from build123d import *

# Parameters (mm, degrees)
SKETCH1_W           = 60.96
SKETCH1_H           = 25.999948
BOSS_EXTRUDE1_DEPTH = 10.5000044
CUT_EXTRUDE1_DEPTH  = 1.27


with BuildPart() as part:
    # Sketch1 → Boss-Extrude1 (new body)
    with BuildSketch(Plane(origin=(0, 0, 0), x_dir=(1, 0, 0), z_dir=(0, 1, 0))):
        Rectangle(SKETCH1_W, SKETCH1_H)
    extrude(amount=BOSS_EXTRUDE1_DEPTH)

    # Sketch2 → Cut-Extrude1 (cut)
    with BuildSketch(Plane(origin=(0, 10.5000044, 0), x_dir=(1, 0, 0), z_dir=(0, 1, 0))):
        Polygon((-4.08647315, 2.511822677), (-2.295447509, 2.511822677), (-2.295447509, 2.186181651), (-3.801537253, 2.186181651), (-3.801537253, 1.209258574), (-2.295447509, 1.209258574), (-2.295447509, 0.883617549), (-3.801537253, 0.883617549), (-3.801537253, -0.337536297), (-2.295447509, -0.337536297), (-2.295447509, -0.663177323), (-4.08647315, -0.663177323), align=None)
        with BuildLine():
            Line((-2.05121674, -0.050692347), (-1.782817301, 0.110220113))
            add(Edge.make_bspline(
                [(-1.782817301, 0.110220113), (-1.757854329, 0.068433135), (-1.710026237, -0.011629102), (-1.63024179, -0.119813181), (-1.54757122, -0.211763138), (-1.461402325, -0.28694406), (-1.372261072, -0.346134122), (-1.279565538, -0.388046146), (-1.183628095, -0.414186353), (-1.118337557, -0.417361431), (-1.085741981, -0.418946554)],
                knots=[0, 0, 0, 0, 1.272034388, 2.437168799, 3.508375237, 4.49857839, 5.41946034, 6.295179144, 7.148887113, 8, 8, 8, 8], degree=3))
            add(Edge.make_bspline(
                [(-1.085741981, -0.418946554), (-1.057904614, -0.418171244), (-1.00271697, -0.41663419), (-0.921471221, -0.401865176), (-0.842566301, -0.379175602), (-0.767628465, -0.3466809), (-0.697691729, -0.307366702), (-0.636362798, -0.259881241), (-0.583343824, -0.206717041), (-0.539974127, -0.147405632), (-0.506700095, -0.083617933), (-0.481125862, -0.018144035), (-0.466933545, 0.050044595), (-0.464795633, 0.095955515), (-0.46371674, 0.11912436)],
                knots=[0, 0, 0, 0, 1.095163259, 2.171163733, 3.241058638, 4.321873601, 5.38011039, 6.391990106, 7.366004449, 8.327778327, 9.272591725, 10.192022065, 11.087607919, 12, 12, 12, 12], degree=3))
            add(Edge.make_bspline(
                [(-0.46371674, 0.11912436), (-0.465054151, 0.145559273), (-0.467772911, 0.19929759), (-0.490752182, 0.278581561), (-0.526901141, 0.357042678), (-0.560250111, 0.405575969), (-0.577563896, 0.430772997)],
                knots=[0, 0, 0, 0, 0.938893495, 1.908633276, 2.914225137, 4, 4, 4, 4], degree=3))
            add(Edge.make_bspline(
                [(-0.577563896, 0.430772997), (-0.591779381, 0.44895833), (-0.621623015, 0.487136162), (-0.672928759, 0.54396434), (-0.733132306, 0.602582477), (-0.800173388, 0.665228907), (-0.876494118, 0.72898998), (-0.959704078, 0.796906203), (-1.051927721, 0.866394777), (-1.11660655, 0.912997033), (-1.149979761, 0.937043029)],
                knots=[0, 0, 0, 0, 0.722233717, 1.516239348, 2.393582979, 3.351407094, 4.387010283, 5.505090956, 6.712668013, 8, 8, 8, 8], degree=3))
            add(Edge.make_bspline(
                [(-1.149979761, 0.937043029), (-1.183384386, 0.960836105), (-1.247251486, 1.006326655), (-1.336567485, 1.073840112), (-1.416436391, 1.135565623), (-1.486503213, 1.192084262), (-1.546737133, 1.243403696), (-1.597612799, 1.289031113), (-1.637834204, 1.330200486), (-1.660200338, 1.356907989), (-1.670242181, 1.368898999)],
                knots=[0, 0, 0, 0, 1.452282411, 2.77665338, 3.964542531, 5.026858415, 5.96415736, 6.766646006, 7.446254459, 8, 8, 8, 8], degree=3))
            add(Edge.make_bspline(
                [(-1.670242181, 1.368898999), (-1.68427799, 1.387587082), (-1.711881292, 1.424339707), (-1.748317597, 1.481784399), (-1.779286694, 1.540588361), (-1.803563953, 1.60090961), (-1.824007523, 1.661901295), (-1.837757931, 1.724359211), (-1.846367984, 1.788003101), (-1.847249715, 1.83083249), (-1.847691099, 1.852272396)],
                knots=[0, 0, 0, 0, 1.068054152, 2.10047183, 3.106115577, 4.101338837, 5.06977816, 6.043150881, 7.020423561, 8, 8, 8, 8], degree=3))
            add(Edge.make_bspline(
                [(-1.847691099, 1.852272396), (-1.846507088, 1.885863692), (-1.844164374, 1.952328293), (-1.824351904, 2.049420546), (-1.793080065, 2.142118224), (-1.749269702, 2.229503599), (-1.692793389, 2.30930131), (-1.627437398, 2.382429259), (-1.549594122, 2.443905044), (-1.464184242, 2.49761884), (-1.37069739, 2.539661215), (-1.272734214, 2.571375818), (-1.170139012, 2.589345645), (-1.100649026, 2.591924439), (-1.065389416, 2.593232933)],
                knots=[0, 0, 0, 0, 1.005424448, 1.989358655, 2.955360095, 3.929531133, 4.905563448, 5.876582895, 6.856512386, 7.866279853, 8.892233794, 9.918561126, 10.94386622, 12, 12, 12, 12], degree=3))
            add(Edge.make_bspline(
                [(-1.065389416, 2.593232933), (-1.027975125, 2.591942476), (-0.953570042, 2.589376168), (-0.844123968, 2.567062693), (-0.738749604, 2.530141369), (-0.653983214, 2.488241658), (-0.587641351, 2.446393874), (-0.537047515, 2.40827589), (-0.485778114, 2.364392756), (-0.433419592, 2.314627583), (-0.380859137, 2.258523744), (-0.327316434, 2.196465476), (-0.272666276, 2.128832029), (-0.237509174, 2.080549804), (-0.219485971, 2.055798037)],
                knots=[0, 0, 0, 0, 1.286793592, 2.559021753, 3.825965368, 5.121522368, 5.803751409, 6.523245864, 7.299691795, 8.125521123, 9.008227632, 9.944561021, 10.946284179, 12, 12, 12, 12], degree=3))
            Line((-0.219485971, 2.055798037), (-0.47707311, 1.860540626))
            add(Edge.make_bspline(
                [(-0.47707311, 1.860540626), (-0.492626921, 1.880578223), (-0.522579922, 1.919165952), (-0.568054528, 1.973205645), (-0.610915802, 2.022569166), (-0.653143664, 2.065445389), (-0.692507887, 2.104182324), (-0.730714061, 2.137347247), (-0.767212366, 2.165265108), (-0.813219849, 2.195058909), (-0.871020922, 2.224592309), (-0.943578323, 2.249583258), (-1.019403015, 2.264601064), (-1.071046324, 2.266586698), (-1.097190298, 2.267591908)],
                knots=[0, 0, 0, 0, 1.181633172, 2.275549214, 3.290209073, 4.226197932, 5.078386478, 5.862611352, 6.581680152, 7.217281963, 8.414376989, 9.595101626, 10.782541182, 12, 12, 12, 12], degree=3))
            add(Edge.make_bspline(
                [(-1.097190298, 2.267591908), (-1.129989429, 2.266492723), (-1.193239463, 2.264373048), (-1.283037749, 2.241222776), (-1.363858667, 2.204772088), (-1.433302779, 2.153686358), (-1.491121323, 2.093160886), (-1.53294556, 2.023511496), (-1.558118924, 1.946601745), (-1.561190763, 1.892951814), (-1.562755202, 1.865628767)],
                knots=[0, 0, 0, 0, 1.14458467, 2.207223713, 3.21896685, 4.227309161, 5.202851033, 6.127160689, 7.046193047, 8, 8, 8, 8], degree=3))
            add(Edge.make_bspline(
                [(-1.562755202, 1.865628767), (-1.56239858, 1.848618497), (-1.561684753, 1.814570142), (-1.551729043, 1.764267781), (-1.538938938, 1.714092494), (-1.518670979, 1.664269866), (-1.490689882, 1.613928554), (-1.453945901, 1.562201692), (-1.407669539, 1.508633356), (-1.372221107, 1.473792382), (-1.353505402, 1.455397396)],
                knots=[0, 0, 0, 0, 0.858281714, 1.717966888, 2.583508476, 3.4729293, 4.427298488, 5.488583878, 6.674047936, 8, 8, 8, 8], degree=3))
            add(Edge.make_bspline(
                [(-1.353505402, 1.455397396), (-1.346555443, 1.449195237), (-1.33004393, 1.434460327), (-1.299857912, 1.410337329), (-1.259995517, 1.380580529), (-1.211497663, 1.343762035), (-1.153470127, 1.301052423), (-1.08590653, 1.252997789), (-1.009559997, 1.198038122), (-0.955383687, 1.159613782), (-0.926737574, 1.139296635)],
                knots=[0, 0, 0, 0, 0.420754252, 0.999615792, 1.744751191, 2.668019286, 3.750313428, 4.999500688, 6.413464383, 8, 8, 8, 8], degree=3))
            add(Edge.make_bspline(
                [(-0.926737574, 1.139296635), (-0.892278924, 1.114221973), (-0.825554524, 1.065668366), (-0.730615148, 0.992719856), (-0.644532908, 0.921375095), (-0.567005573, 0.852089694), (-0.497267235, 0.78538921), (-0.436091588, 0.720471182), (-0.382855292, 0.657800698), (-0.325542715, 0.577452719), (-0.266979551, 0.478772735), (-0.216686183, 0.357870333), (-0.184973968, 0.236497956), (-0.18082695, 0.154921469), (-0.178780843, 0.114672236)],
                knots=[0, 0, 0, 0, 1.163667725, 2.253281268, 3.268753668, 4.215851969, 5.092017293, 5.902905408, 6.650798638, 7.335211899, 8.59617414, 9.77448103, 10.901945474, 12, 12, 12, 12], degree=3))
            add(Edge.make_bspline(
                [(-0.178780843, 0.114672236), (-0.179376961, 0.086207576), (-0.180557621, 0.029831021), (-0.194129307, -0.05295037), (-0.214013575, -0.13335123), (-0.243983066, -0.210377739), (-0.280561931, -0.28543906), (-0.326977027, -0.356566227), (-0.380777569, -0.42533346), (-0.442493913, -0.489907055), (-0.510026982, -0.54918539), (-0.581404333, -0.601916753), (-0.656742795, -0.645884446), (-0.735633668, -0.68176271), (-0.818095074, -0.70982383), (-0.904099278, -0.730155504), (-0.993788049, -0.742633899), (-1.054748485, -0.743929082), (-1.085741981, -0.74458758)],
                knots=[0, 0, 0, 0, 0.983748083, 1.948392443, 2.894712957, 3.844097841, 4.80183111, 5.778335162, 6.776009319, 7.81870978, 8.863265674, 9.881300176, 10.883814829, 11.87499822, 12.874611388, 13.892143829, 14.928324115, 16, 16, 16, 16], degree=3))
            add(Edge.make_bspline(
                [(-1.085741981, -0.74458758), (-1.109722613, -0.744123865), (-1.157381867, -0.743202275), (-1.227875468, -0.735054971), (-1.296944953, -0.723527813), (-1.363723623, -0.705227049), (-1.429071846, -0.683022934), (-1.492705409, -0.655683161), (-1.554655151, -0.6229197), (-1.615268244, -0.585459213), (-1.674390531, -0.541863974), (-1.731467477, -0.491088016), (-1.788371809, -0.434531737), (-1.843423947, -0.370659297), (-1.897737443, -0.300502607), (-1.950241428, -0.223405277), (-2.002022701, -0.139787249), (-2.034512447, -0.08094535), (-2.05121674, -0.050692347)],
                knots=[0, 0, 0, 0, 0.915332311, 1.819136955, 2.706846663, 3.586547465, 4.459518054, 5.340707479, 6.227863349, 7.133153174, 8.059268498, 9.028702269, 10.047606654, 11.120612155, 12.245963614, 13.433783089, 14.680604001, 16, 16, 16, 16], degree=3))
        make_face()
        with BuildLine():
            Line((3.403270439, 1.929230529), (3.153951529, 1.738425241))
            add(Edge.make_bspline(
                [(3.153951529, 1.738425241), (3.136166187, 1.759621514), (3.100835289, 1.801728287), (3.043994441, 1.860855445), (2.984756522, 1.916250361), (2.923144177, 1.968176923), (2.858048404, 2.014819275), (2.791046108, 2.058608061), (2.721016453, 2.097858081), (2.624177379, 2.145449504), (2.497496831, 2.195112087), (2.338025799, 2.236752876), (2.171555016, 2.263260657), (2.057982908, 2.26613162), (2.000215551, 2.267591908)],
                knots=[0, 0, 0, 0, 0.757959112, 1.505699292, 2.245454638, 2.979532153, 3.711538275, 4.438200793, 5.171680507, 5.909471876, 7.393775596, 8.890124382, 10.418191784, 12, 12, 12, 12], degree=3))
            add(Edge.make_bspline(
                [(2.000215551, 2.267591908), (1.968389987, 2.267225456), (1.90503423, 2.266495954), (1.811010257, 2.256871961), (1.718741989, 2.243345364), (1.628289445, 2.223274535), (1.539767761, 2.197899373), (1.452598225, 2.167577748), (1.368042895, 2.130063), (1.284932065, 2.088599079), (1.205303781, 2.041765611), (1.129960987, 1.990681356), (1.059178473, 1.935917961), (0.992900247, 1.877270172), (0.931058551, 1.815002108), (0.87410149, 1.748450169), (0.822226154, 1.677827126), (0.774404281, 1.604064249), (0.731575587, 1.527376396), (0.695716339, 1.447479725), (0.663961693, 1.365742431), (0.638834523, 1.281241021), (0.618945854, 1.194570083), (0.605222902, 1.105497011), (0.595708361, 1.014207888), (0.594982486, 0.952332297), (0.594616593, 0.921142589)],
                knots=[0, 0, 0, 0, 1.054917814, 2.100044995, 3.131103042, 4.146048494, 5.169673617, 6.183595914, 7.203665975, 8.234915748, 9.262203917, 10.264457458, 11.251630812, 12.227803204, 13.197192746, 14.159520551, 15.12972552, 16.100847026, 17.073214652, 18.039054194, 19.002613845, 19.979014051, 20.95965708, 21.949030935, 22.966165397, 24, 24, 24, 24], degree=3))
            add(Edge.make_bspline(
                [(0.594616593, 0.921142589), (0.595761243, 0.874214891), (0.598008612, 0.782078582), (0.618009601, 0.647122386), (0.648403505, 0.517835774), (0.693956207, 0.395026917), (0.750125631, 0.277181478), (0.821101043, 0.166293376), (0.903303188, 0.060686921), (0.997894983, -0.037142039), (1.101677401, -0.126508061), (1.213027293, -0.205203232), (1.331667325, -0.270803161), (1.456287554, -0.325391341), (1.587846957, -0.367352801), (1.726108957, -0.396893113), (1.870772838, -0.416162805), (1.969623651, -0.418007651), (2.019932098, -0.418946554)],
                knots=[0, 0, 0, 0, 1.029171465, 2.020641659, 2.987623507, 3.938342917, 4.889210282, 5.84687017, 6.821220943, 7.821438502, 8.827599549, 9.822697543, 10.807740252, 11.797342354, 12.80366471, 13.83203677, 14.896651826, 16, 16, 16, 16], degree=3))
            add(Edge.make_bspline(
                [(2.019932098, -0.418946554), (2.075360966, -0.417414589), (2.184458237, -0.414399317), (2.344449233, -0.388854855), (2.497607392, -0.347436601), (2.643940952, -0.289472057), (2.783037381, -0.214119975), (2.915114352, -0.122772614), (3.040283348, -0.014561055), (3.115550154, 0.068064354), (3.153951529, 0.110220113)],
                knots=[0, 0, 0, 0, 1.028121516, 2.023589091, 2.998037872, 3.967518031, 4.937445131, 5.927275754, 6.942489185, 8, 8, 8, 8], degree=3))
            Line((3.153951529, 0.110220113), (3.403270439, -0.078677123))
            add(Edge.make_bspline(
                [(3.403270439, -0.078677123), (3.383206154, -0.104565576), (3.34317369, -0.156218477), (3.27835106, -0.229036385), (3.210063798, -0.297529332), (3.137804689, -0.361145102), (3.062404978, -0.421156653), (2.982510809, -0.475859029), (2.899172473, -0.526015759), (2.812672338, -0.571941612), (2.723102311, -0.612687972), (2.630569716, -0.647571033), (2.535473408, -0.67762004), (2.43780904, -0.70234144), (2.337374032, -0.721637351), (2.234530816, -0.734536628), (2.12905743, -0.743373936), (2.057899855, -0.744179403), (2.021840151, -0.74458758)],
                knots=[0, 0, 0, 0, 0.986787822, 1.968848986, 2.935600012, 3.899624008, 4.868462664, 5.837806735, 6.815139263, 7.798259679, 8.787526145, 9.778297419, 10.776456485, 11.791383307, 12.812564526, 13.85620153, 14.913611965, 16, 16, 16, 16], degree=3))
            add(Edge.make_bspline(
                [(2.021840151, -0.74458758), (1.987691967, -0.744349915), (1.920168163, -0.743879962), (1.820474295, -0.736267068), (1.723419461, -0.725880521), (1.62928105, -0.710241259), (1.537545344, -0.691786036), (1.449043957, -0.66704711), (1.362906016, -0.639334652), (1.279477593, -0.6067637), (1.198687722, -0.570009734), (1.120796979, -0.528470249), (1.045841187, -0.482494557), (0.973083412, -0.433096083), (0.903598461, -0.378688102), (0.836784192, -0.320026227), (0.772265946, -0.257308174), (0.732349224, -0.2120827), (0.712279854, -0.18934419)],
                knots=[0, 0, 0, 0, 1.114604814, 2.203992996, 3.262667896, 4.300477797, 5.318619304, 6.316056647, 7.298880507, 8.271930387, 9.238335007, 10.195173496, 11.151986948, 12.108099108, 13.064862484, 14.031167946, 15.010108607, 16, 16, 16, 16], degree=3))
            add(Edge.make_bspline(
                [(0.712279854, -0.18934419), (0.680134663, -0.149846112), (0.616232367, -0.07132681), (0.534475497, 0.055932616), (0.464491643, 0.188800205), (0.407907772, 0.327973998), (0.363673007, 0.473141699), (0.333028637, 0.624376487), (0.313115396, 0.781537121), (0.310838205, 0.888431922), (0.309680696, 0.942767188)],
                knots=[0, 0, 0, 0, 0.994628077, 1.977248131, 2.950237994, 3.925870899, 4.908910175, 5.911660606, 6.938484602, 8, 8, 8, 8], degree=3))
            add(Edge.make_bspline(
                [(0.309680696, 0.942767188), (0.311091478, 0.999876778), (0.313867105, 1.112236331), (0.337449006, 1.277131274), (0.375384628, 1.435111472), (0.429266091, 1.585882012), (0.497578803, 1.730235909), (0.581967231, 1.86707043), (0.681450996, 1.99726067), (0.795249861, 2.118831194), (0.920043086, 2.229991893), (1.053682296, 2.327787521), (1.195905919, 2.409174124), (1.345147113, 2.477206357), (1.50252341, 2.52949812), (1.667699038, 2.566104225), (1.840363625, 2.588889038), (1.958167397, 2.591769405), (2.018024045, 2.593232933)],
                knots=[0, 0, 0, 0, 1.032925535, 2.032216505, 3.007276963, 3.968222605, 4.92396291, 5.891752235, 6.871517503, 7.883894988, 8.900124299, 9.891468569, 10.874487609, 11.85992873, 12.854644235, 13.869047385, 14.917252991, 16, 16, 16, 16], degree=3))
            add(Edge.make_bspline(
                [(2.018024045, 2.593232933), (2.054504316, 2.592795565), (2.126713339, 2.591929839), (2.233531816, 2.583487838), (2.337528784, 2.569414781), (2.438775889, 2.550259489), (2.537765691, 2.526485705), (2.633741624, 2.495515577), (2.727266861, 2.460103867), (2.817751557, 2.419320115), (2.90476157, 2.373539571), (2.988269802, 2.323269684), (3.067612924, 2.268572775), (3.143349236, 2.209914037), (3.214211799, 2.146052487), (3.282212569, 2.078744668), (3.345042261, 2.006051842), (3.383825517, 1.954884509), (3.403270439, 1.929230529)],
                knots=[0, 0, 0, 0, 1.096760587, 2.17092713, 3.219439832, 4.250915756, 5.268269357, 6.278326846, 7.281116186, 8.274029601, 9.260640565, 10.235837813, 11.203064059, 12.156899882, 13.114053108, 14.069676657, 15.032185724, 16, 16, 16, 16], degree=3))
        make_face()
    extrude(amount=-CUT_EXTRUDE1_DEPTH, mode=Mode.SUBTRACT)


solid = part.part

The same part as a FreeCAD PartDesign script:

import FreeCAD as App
import Part
import Sketcher
Q = App.Units.Quantity

doc = App.newDocument("Part")
body = doc.addObject("PartDesign::Body", "Body")

# Sketch on XZ plane
sketch1 = body.newObject("Sketcher::SketchObject", "Sketch")
sketch1.AttachmentSupport = (doc.getObject("XZ_Plane"), [""])
sketch1.MapMode = "FlatFace"
sketch1.addGeometry([
    Part.LineSegment(App.Vector(-30, -13, 0), App.Vector(-30, 13, 0)),
    Part.LineSegment(App.Vector(-30, 13, 0), App.Vector(30, 13, 0)),
    Part.LineSegment(App.Vector(30, 13, 0), App.Vector(30, -13, 0)),
    Part.LineSegment(App.Vector(30, -13, 0), App.Vector(-30, -13, 0)),
], False)
sketch1.addConstraint([
    Sketcher.Constraint("Coincident", 0, 2, 1, 1),
    Sketcher.Constraint("Coincident", 1, 2, 2, 1),
    Sketcher.Constraint("Coincident", 2, 2, 3, 1),
    Sketcher.Constraint("Coincident", 3, 2, 0, 1),
    Sketcher.Constraint("Vertical", 0),
    Sketcher.Constraint("Horizontal", 1),
    Sketcher.Constraint("Vertical", 2),
    Sketcher.Constraint("Horizontal", 3),
    Sketcher.Constraint("Symmetric", 0, 2, 2, 2, -1, 1),
    Sketcher.Constraint("DistanceX", 1, 1, 1, 2, Q("2.4 in")),
    Sketcher.Constraint("DistanceY", 0, 1, 0, 2, 25.999948),
])
pad1 = body.newObject("PartDesign::Pad", "Pad")
pad1.Profile = sketch1
pad1.Length = 10.500004
pad1.Reversed = True

# Sketch on XZ plane
sketch2 = body.newObject("Sketcher::SketchObject", "Sketch001")
sketch2.AttachmentSupport = (doc.getObject("XZ_Plane"), [""])
sketch2.MapMode = "FlatFace"
sketch2.AttachmentOffset = App.Placement(App.Vector(0, 0, -10.500004), App.Rotation())
sketch2.addGeometry([
    Part.LineSegment(App.Vector(-2.295448, -2.511823, 0), App.Vector(-4.086473, -2.511823, 0)),  # 0
    Part.LineSegment(App.Vector(-4.086473, -2.511823, 0), App.Vector(-4.086473, 0.663177, 0)),  # 1
    Part.LineSegment(App.Vector(-4.086473, 0.663177, 0), App.Vector(-2.295448, 0.663177, 0)),  # 2
    Part.LineSegment(App.Vector(-2.295448, 0.663177, 0), App.Vector(-2.295448, 0.337536, 0)),  # 3
    Part.LineSegment(App.Vector(-2.295448, 0.337536, 0), App.Vector(-3.801537, 0.337536, 0)),  # 4
    Part.LineSegment(App.Vector(-3.801537, 0.337536, 0), App.Vector(-3.801537, -0.883618, 0)),  # 5
    Part.LineSegment(App.Vector(-3.801537, -0.883618, 0), App.Vector(-2.295448, -0.883618, 0)),  # 6
    Part.LineSegment(App.Vector(-2.295448, -0.883618, 0), App.Vector(-2.295448, -1.209259, 0)),  # 7
    Part.LineSegment(App.Vector(-2.295448, -1.209259, 0), App.Vector(-3.801537, -1.209259, 0)),  # 8
    Part.LineSegment(App.Vector(-3.801537, -1.209259, 0), App.Vector(-3.801537, -2.186182, 0)),  # 9
    Part.LineSegment(App.Vector(-3.801537, -2.186182, 0), App.Vector(-2.295448, -2.186182, 0)),  # 10
    Part.LineSegment(App.Vector(-2.295448, -2.186182, 0), App.Vector(-2.295448, -2.511823, 0)),  # 11
    Part.LineSegment(App.Vector(-1.782817, -0.11022, 0), App.Vector(-2.051217, 0.050692, 0)),  # 12
    Part.BSplineCurve([App.Vector(-1.085742, 0.744588, 0), App.Vector(-1.109723, 0.744124, 0), App.Vector(-1.157382, 0.743202, 0), App.Vector(-1.227875, 0.735055, 0), App.Vector(-1.296945, 0.723528, 0), App.Vector(-1.363724, 0.705227, 0), App.Vector(-1.429072, 0.683023, 0), App.Vector(-1.492705, 0.655683, 0), App.Vector(-1.554655, 0.62292, 0), App.Vector(-1.615268, 0.585459, 0), App.Vector(-1.674391, 0.541864, 0), App.Vector(-1.731467, 0.491088, 0), App.Vector(-1.788372, 0.434532, 0), App.Vector(-1.843424, 0.370659, 0), App.Vector(-1.897737, 0.300503, 0), App.Vector(-1.950241, 0.223405, 0), App.Vector(-2.002023, 0.139787, 0), App.Vector(-2.034512, 0.080945, 0), App.Vector(-2.051217, 0.050692, 0)], [4, 1, 1, 1, 1, 1, 1, 1, 1, 1, 1, 1, 1, 1, 1, 1, 4], [0, 0.915332311, 1.819136955, 2.706846663, 3.586547465, 4.459518054, 5.340707479, 6.227863349, 7.133153174, 8.059268498, 9.028702269, 10.047606654, 11.120612155, 12.245963614, 13.433783089, 14.680604001, 16], False, 3, [1, 1, 1, 1, 1, 1, 1, 1, 1, 1, 1, 1, 1, 1, 1, 1, 1, 1, 1], False),  # 13
    Part.BSplineCurve([App.Vector(-0.178781, -0.114672, 0), App.Vector(-0.179377, -0.086208, 0), App.Vector(-0.180558, -0.029831, 0), App.Vector(-0.194129, 0.05295, 0), App.Vector(-0.214014, 0.133351, 0), App.Vector(-0.243983, 0.210378, 0), App.Vector(-0.280562, 0.285439, 0), App.Vector(-0.326977, 0.356566, 0), App.Vector(-0.380778, 0.425333, 0), App.Vector(-0.442494, 0.489907, 0), App.Vector(-0.510027, 0.549185, 0), App.Vector(-0.581404, 0.601917, 0), App.Vector(-0.656743, 0.645884, 0), App.Vector(-0.735634, 0.681763, 0), App.Vector(-0.818095, 0.709824, 0), App.Vector(-0.904099, 0.730156, 0), App.Vector(-0.993788, 0.742634, 0), App.Vector(-1.054748, 0.743929, 0), App.Vector(-1.085742, 0.744588, 0)], [4, 1, 1, 1, 1, 1, 1, 1, 1, 1, 1, 1, 1, 1, 1, 1, 4], [0, 0.983748083, 1.948392443, 2.894712957, 3.844097841, 4.80183111, 5.778335162, 6.776009319, 7.81870978, 8.863265674, 9.881300176, 10.883814829, 11.87499822, 12.874611388, 13.892143829, 14.928324115, 16], False, 3, [1, 1, 1, 1, 1, 1, 1, 1, 1, 1, 1, 1, 1, 1, 1, 1, 1, 1, 1], False),  # 14
    Part.BSplineCurve([App.Vector(-0.926738, -1.139297, 0), App.Vector(-0.892279, -1.114222, 0), App.Vector(-0.825555, -1.065668, 0), App.Vector(-0.730615, -0.99272, 0), App.Vector(-0.644533, -0.921375, 0), App.Vector(-0.567006, -0.85209, 0), App.Vector(-0.497267, -0.785389, 0), App.Vector(-0.436092, -0.720471, 0), App.Vector(-0.382855, -0.657801, 0), App.Vector(-0.325543, -0.577453, 0), App.Vector(-0.26698, -0.478773, 0), App.Vector(-0.216686, -0.35787, 0), App.Vector(-0.184974, -0.236498, 0), App.Vector(-0.180827, -0.154921, 0), App.Vector(-0.178781, -0.114672, 0)], [4, 1, 1, 1, 1, 1, 1, 1, 1, 1, 1, 1, 4], [0, 1.163667725, 2.253281268, 3.268753668, 4.215851969, 5.092017293, 5.902905408, 6.650798638, 7.335211899, 8.59617414, 9.77448103, 10.901945474, 12], False, 3, [1, 1, 1, 1, 1, 1, 1, 1, 1, 1, 1, 1, 1, 1, 1], False),  # 15
    Part.BSplineCurve([App.Vector(-1.353505, -1.455397, 0), App.Vector(-1.346555, -1.449195, 0), App.Vector(-1.330044, -1.43446, 0), App.Vector(-1.299858, -1.410337, 0), App.Vector(-1.259996, -1.380581, 0), App.Vector(-1.211498, -1.343762, 0), App.Vector(-1.15347, -1.301052, 0), App.Vector(-1.085907, -1.252998, 0), App.Vector(-1.00956, -1.198038, 0), App.Vector(-0.955384, -1.159614, 0), App.Vector(-0.926738, -1.139297, 0)], [4, 1, 1, 1, 1, 1, 1, 1, 4], [0, 0.420754252, 0.999615792, 1.744751191, 2.668019286, 3.750313428, 4.999500688, 6.413464383, 8], False, 3, [1, 1, 1, 1, 1, 1, 1, 1, 1, 1, 1], False),  # 16
    Part.BSplineCurve([App.Vector(-1.562755, -1.865629, 0), App.Vector(-1.562399, -1.848618, 0), App.Vector(-1.561685, -1.81457, 0), App.Vector(-1.551729, -1.764268, 0), App.Vector(-1.538939, -1.714092, 0), App.Vector(-1.518671, -1.66427, 0), App.Vector(-1.49069, -1.613929, 0), App.Vector(-1.453946, -1.562202, 0), App.Vector(-1.40767, -1.508633, 0), App.Vector(-1.372221, -1.473792, 0), App.Vector(-1.353505, -1.455397, 0)], [4, 1, 1, 1, 1, 1, 1, 1, 4], [0, 0.858281714, 1.717966888, 2.583508476, 3.4729293, 4.427298488, 5.488583878, 6.674047936, 8], False, 3, [1, 1, 1, 1, 1, 1, 1, 1, 1, 1, 1], False),  # 17
    Part.BSplineCurve([App.Vector(-1.09719, -2.267592, 0), App.Vector(-1.129989, -2.266493, 0), App.Vector(-1.193239, -2.264373, 0), App.Vector(-1.283038, -2.241223, 0), App.Vector(-1.363859, -2.204772, 0), App.Vector(-1.433303, -2.153686, 0), App.Vector(-1.491121, -2.093161, 0), App.Vector(-1.532946, -2.023511, 0), App.Vector(-1.558119, -1.946602, 0), App.Vector(-1.561191, -1.892952, 0), App.Vector(-1.562755, -1.865629, 0)], [4, 1, 1, 1, 1, 1, 1, 1, 4], [0, 1.14458467, 2.207223713, 3.21896685, 4.227309161, 5.202851033, 6.127160689, 7.046193047, 8], False, 3, [1, 1, 1, 1, 1, 1, 1, 1, 1, 1, 1], False),  # 18
    Part.BSplineCurve([App.Vector(-0.477073, -1.860541, 0), App.Vector(-0.492627, -1.880578, 0), App.Vector(-0.52258, -1.919166, 0), App.Vector(-0.568055, -1.973206, 0), App.Vector(-0.610916, -2.022569, 0), App.Vector(-0.653144, -2.065445, 0), App.Vector(-0.692508, -2.104182, 0), App.Vector(-0.730714, -2.137347, 0), App.Vector(-0.767212, -2.165265, 0), App.Vector(-0.81322, -2.195059, 0), App.Vector(-0.871021, -2.224592, 0), App.Vector(-0.943578, -2.249583, 0), App.Vector(-1.019403, -2.264601, 0), App.Vector(-1.071046, -2.266587, 0), App.Vector(-1.09719, -2.267592, 0)], [4, 1, 1, 1, 1, 1, 1, 1, 1, 1, 1, 1, 4], [0, 1.181633172, 2.275549214, 3.290209073, 4.226197932, 5.078386478, 5.862611352, 6.581680152, 7.217281963, 8.414376989, 9.595101626, 10.782541182, 12], False, 3, [1, 1, 1, 1, 1, 1, 1, 1, 1, 1, 1, 1, 1, 1, 1], False),  # 19
    Part.LineSegment(App.Vector(-0.477073, -1.860541, 0), App.Vector(-0.219486, -2.055798, 0)),  # 20
    Part.BSplineCurve([App.Vector(-1.065389, -2.593233, 0), App.Vector(-1.027975, -2.591942, 0), App.Vector(-0.95357, -2.589376, 0), App.Vector(-0.844124, -2.567063, 0), App.Vector(-0.73875, -2.530141, 0), App.Vector(-0.653983, -2.488242, 0), App.Vector(-0.587641, -2.446394, 0), App.Vector(-0.537048, -2.408276, 0), App.Vector(-0.485778, -2.364393, 0), App.Vector(-0.43342, -2.314628, 0), App.Vector(-0.380859, -2.258524, 0), App.Vector(-0.327316, -2.196465, 0), App.Vector(-0.272666, -2.128832, 0), App.Vector(-0.237509, -2.08055, 0), App.Vector(-0.219486, -2.055798, 0)], [4, 1, 1, 1, 1, 1, 1, 1, 1, 1, 1, 1, 4], [0, 1.286793592, 2.559021753, 3.825965368, 5.121522368, 5.803751409, 6.523245864, 7.299691795, 8.125521123, 9.008227632, 9.944561021, 10.946284179, 12], False, 3, [1, 1, 1, 1, 1, 1, 1, 1, 1, 1, 1, 1, 1, 1, 1], False),  # 21
    Part.BSplineCurve([App.Vector(-1.847691, -1.852272, 0), App.Vector(-1.846507, -1.885864, 0), App.Vector(-1.844164, -1.952328, 0), App.Vector(-1.824352, -2.049421, 0), App.Vector(-1.79308, -2.142118, 0), App.Vector(-1.74927, -2.229504, 0), App.Vector(-1.692793, -2.309301, 0), App.Vector(-1.627437, -2.382429, 0), App.Vector(-1.549594, -2.443905, 0), App.Vector(-1.464184, -2.497619, 0), App.Vector(-1.370697, -2.539661, 0), App.Vector(-1.272734, -2.571376, 0), App.Vector(-1.170139, -2.589346, 0), App.Vector(-1.100649, -2.591924, 0), App.Vector(-1.065389, -2.593233, 0)], [4, 1, 1, 1, 1, 1, 1, 1, 1, 1, 1, 1, 4], [0, 1.005424448, 1.989358655, 2.955360095, 3.929531133, 4.905563448, 5.876582895, 6.856512386, 7.866279853, 8.892233794, 9.918561126, 10.94386622, 12], False, 3, [1, 1, 1, 1, 1, 1, 1, 1, 1, 1, 1, 1, 1, 1, 1], False),  # 22
    Part.BSplineCurve([App.Vector(-1.670242, -1.368899, 0), App.Vector(-1.684278, -1.387587, 0), App.Vector(-1.711881, -1.42434, 0), App.Vector(-1.748318, -1.481784, 0), App.Vector(-1.779287, -1.540588, 0), App.Vector(-1.803564, -1.60091, 0), App.Vector(-1.824008, -1.661901, 0), App.Vector(-1.837758, -1.724359, 0), App.Vector(-1.846368, -1.788003, 0), App.Vector(-1.84725, -1.830832, 0), App.Vector(-1.847691, -1.852272, 0)], [4, 1, 1, 1, 1, 1, 1, 1, 4], [0, 1.068054152, 2.10047183, 3.106115577, 4.101338837, 5.06977816, 6.043150881, 7.020423561, 8], False, 3, [1, 1, 1, 1, 1, 1, 1, 1, 1, 1, 1], False),  # 23
    Part.BSplineCurve([App.Vector(-1.14998, -0.937043, 0), App.Vector(-1.183384, -0.960836, 0), App.Vector(-1.247251, -1.006327, 0), App.Vector(-1.336567, -1.07384, 0), App.Vector(-1.416436, -1.135566, 0), App.Vector(-1.486503, -1.192084, 0), App.Vector(-1.546737, -1.243404, 0), App.Vector(-1.597613, -1.289031, 0), App.Vector(-1.637834, -1.3302, 0), App.Vector(-1.6602, -1.356908, 0), App.Vector(-1.670242, -1.368899, 0)], [4, 1, 1, 1, 1, 1, 1, 1, 4], [0, 1.452282411, 2.77665338, 3.964542531, 5.026858415, 5.96415736, 6.766646006, 7.446254459, 8], False, 3, [1, 1, 1, 1, 1, 1, 1, 1, 1, 1, 1], False),  # 24
    Part.BSplineCurve([App.Vector(-0.577564, -0.430773, 0), App.Vector(-0.591779, -0.448958, 0), App.Vector(-0.621623, -0.487136, 0), App.Vector(-0.672929, -0.543964, 0), App.Vector(-0.733132, -0.602582, 0), App.Vector(-0.800173, -0.665229, 0), App.Vector(-0.876494, -0.72899, 0), App.Vector(-0.959704, -0.796906, 0), App.Vector(-1.051928, -0.866395, 0), App.Vector(-1.116607, -0.912997, 0), App.Vector(-1.14998, -0.937043, 0)], [4, 1, 1, 1, 1, 1, 1, 1, 4], [0, 0.722233717, 1.516239348, 2.393582979, 3.351407094, 4.387010283, 5.505090956, 6.712668013, 8], False, 3, [1, 1, 1, 1, 1, 1, 1, 1, 1, 1, 1], False),  # 25
    Part.BSplineCurve([App.Vector(-0.463717, -0.119124, 0), App.Vector(-0.465054, -0.145559, 0), App.Vector(-0.467773, -0.199298, 0), App.Vector(-0.490752, -0.278582, 0), App.Vector(-0.526901, -0.357043, 0), App.Vector(-0.56025, -0.405576, 0), App.Vector(-0.577564, -0.430773, 0)], [4, 1, 1, 1, 4], [0, 0.938893495, 1.908633276, 2.914225137, 4], False, 3, [1, 1, 1, 1, 1, 1, 1], False),  # 26
    Part.BSplineCurve([App.Vector(-1.085742, 0.418947, 0), App.Vector(-1.057905, 0.418171, 0), App.Vector(-1.002717, 0.416634, 0), App.Vector(-0.921471, 0.401865, 0), App.Vector(-0.842566, 0.379176, 0), App.Vector(-0.767628, 0.346681, 0), App.Vector(-0.697692, 0.307367, 0), App.Vector(-0.636363, 0.259881, 0), App.Vector(-0.583344, 0.206717, 0), App.Vector(-0.539974, 0.147406, 0), App.Vector(-0.5067, 0.083618, 0), App.Vector(-0.481126, 0.018144, 0), App.Vector(-0.466934, -0.050045, 0), App.Vector(-0.464796, -0.095956, 0), App.Vector(-0.463717, -0.119124, 0)], [4, 1, 1, 1, 1, 1, 1, 1, 1, 1, 1, 1, 4], [0, 1.095163259, 2.171163733, 3.241058638, 4.321873601, 5.38011039, 6.391990106, 7.366004449, 8.327778327, 9.272591725, 10.192022065, 11.087607919, 12], False, 3, [1, 1, 1, 1, 1, 1, 1, 1, 1, 1, 1, 1, 1, 1, 1], False),  # 27
    Part.BSplineCurve([App.Vector(-1.782817, -0.11022, 0), App.Vector(-1.757854, -0.068433, 0), App.Vector(-1.710026, 0.011629, 0), App.Vector(-1.630242, 0.119813, 0), App.Vector(-1.547571, 0.211763, 0), App.Vector(-1.461402, 0.286944, 0), App.Vector(-1.372261, 0.346134, 0), App.Vector(-1.279566, 0.388046, 0), App.Vector(-1.183628, 0.414186, 0), App.Vector(-1.118338, 0.417361, 0), App.Vector(-1.085742, 0.418947, 0)], [4, 1, 1, 1, 1, 1, 1, 1, 4], [0, 1.272034388, 2.437168799, 3.508375237, 4.49857839, 5.41946034, 6.295179144, 7.148887113, 8], False, 3, [1, 1, 1, 1, 1, 1, 1, 1, 1, 1, 1], False),  # 28
    Part.LineSegment(App.Vector(3.153952, -1.738425, 0), App.Vector(3.40327, -1.929231, 0)),  # 29
    Part.BSplineCurve([App.Vector(2.018024, -2.593233, 0), App.Vector(2.054504, -2.592796, 0), App.Vector(2.126713, -2.59193, 0), App.Vector(2.233532, -2.583488, 0), App.Vector(2.337529, -2.569415, 0), App.Vector(2.438776, -2.550259, 0), App.Vector(2.537766, -2.526486, 0), App.Vector(2.633742, -2.495516, 0), App.Vector(2.727267, -2.460104, 0), App.Vector(2.817752, -2.41932, 0), App.Vector(2.904762, -2.37354, 0), App.Vector(2.98827, -2.32327, 0), App.Vector(3.067613, -2.268573, 0), App.Vector(3.143349, -2.209914, 0), App.Vector(3.214212, -2.146052, 0), App.Vector(3.282213, -2.078745, 0), App.Vector(3.345042, -2.006052, 0), App.Vector(3.383826, -1.954885, 0), App.Vector(3.40327, -1.929231, 0)], [4, 1, 1, 1, 1, 1, 1, 1, 1, 1, 1, 1, 1, 1, 1, 1, 4], [0, 1.096760587, 2.17092713, 3.219439832, 4.250915756, 5.268269357, 6.278326846, 7.281116186, 8.274029601, 9.260640565, 10.235837813, 11.203064059, 12.156899882, 13.114053108, 14.069676657, 15.032185724, 16], False, 3, [1, 1, 1, 1, 1, 1, 1, 1, 1, 1, 1, 1, 1, 1, 1, 1, 1, 1, 1], False),  # 30
    Part.BSplineCurve([App.Vector(0.309681, -0.942767, 0), App.Vector(0.311091, -0.999877, 0), App.Vector(0.313867, -1.112236, 0), App.Vector(0.337449, -1.277131, 0), App.Vector(0.375385, -1.435111, 0), App.Vector(0.429266, -1.585882, 0), App.Vector(0.497579, -1.730236, 0), App.Vector(0.581967, -1.86707, 0), App.Vector(0.681451, -1.997261, 0), App.Vector(0.79525, -2.118831, 0), App.Vector(0.920043, -2.229992, 0), App.Vector(1.053682, -2.327788, 0), App.Vector(1.195906, -2.409174, 0), App.Vector(1.345147, -2.477206, 0), App.Vector(1.502523, -2.529498, 0), App.Vector(1.667699, -2.566104, 0), App.Vector(1.840364, -2.588889, 0), App.Vector(1.958167, -2.591769, 0), App.Vector(2.018024, -2.593233, 0)], [4, 1, 1, 1, 1, 1, 1, 1, 1, 1, 1, 1, 1, 1, 1, 1, 4], [0, 1.032925535, 2.032216505, 3.007276963, 3.968222605, 4.92396291, 5.891752235, 6.871517503, 7.883894988, 8.900124299, 9.891468569, 10.874487609, 11.85992873, 12.854644235, 13.869047385, 14.917252991, 16], False, 3, [1, 1, 1, 1, 1, 1, 1, 1, 1, 1, 1, 1, 1, 1, 1, 1, 1, 1, 1], False),  # 31
    Part.BSplineCurve([App.Vector(0.71228, 0.189344, 0), App.Vector(0.680135, 0.149846, 0), App.Vector(0.616232, 0.071327, 0), App.Vector(0.534475, -0.055933, 0), App.Vector(0.464492, -0.1888, 0), App.Vector(0.407908, -0.327974, 0), App.Vector(0.363673, -0.473142, 0), App.Vector(0.333029, -0.624376, 0), App.Vector(0.313115, -0.781537, 0), App.Vector(0.310838, -0.888432, 0), App.Vector(0.309681, -0.942767, 0)], [4, 1, 1, 1, 1, 1, 1, 1, 4], [0, 0.994628077, 1.977248131, 2.950237994, 3.925870899, 4.908910175, 5.911660606, 6.938484602, 8], False, 3, [1, 1, 1, 1, 1, 1, 1, 1, 1, 1, 1], False),  # 32
    Part.BSplineCurve([App.Vector(2.02184, 0.744588, 0), App.Vector(1.987692, 0.74435, 0), App.Vector(1.920168, 0.74388, 0), App.Vector(1.820474, 0.736267, 0), App.Vector(1.723419, 0.725881, 0), App.Vector(1.629281, 0.710241, 0), App.Vector(1.537545, 0.691786, 0), App.Vector(1.449044, 0.667047, 0), App.Vector(1.362906, 0.639335, 0), App.Vector(1.279478, 0.606764, 0), App.Vector(1.198688, 0.57001, 0), App.Vector(1.120797, 0.52847, 0), App.Vector(1.045841, 0.482495, 0), App.Vector(0.973083, 0.433096, 0), App.Vector(0.903598, 0.378688, 0), App.Vector(0.836784, 0.320026, 0), App.Vector(0.772266, 0.257308, 0), App.Vector(0.732349, 0.212083, 0), App.Vector(0.71228, 0.189344, 0)], [4, 1, 1, 1, 1, 1, 1, 1, 1, 1, 1, 1, 1, 1, 1, 1, 4], [0, 1.114604814, 2.203992996, 3.262667896, 4.300477797, 5.318619304, 6.316056647, 7.298880507, 8.271930387, 9.238335007, 10.195173496, 11.151986948, 12.108099108, 13.064862484, 14.031167946, 15.010108607, 16], False, 3, [1, 1, 1, 1, 1, 1, 1, 1, 1, 1, 1, 1, 1, 1, 1, 1, 1, 1, 1], False),  # 33
    Part.BSplineCurve([App.Vector(3.40327, 0.078677, 0), App.Vector(3.383206, 0.104566, 0), App.Vector(3.343174, 0.156218, 0), App.Vector(3.278351, 0.229036, 0), App.Vector(3.210064, 0.297529, 0), App.Vector(3.137805, 0.361145, 0), App.Vector(3.062405, 0.421157, 0), App.Vector(2.982511, 0.475859, 0), App.Vector(2.899172, 0.526016, 0), App.Vector(2.812672, 0.571942, 0), App.Vector(2.723102, 0.612688, 0), App.Vector(2.63057, 0.647571, 0), App.Vector(2.535473, 0.67762, 0), App.Vector(2.437809, 0.702341, 0), App.Vector(2.337374, 0.721637, 0), App.Vector(2.234531, 0.734537, 0), App.Vector(2.129057, 0.743374, 0), App.Vector(2.0579, 0.744179, 0), App.Vector(2.02184, 0.744588, 0)], [4, 1, 1, 1, 1, 1, 1, 1, 1, 1, 1, 1, 1, 1, 1, 1, 4], [0, 0.986787822, 1.968848986, 2.935600012, 3.899624008, 4.868462664, 5.837806735, 6.815139263, 7.798259679, 8.787526145, 9.778297419, 10.776456485, 11.791383307, 12.812564526, 13.85620153, 14.913611965, 16], False, 3, [1, 1, 1, 1, 1, 1, 1, 1, 1, 1, 1, 1, 1, 1, 1, 1, 1, 1, 1], False),  # 34
    Part.LineSegment(App.Vector(3.40327, 0.078677, 0), App.Vector(3.153952, -0.11022, 0)),  # 35
    Part.BSplineCurve([App.Vector(2.019932, 0.418947, 0), App.Vector(2.075361, 0.417415, 0), App.Vector(2.184458, 0.414399, 0), App.Vector(2.344449, 0.388855, 0), App.Vector(2.497607, 0.347437, 0), App.Vector(2.643941, 0.289472, 0), App.Vector(2.783037, 0.21412, 0), App.Vector(2.915114, 0.122773, 0), App.Vector(3.040283, 0.014561, 0), App.Vector(3.11555, -0.068064, 0), App.Vector(3.153952, -0.11022, 0)], [4, 1, 1, 1, 1, 1, 1, 1, 4], [0, 1.028121516, 2.023589091, 2.998037872, 3.967518031, 4.937445131, 5.927275754, 6.942489185, 8], False, 3, [1, 1, 1, 1, 1, 1, 1, 1, 1, 1, 1], False),  # 36
    Part.BSplineCurve([App.Vector(0.594617, -0.921143, 0), App.Vector(0.595761, -0.874215, 0), App.Vector(0.598009, -0.782079, 0), App.Vector(0.61801, -0.647122, 0), App.Vector(0.648404, -0.517836, 0), App.Vector(0.693956, -0.395027, 0), App.Vector(0.750126, -0.277181, 0), App.Vector(0.821101, -0.166293, 0), App.Vector(0.903303, -0.060687, 0), App.Vector(0.997895, 0.037142, 0), App.Vector(1.101677, 0.126508, 0), App.Vector(1.213027, 0.205203, 0), App.Vector(1.331667, 0.270803, 0), App.Vector(1.456288, 0.325391, 0), App.Vector(1.587847, 0.367353, 0), App.Vector(1.726109, 0.396893, 0), App.Vector(1.870773, 0.416163, 0), App.Vector(1.969624, 0.418008, 0), App.Vector(2.019932, 0.418947, 0)], [4, 1, 1, 1, 1, 1, 1, 1, 1, 1, 1, 1, 1, 1, 1, 1, 4], [0, 1.029171465, 2.020641659, 2.987623507, 3.938342917, 4.889210282, 5.84687017, 6.821220943, 7.821438502, 8.827599549, 9.822697543, 10.807740252, 11.797342354, 12.80366471, 13.83203677, 14.896651826, 16], False, 3, [1, 1, 1, 1, 1, 1, 1, 1, 1, 1, 1, 1, 1, 1, 1, 1, 1, 1, 1], False),  # 37
    Part.BSplineCurve([App.Vector(2.000216, -2.267592, 0), App.Vector(1.96839, -2.267225, 0), App.Vector(1.905034, -2.266496, 0), App.Vector(1.81101, -2.256872, 0), App.Vector(1.718742, -2.243345, 0), App.Vector(1.628289, -2.223275, 0), App.Vector(1.539768, -2.197899, 0), App.Vector(1.452598, -2.167578, 0), App.Vector(1.368043, -2.130063, 0), App.Vector(1.284932, -2.088599, 0), App.Vector(1.205304, -2.041766, 0), App.Vector(1.129961, -1.990681, 0), App.Vector(1.059178, -1.935918, 0), App.Vector(0.9929, -1.87727, 0), App.Vector(0.931059, -1.815002, 0), App.Vector(0.874101, -1.74845, 0), App.Vector(0.822226, -1.677827, 0), App.Vector(0.774404, -1.604064, 0), App.Vector(0.731576, -1.527376, 0), App.Vector(0.695716, -1.44748, 0), App.Vector(0.663962, -1.365742, 0), App.Vector(0.638835, -1.281241, 0), App.Vector(0.618946, -1.19457, 0), App.Vector(0.605223, -1.105497, 0), App.Vector(0.595708, -1.014208, 0), App.Vector(0.594982, -0.952332, 0), App.Vector(0.594617, -0.921143, 0)], [4, 1, 1, 1, 1, 1, 1, 1, 1, 1, 1, 1, 1, 1, 1, 1, 1, 1, 1, 1, 1, 1, 1, 1, 4], [0, 1.054917814, 2.100044995, 3.131103042, 4.146048494, 5.169673617, 6.183595914, 7.203665975, 8.234915748, 9.262203917, 10.264457458, 11.251630812, 12.227803204, 13.197192746, 14.159520551, 15.12972552, 16.100847026, 17.073214652, 18.039054194, 19.002613845, 19.979014051, 20.95965708, 21.949030935, 22.966165397, 24], False, 3, [1, 1, 1, 1, 1, 1, 1, 1, 1, 1, 1, 1, 1, 1, 1, 1, 1, 1, 1, 1, 1, 1, 1, 1, 1, 1, 1], False),  # 38
    Part.BSplineCurve([App.Vector(3.153952, -1.738425, 0), App.Vector(3.136166, -1.759622, 0), App.Vector(3.100835, -1.801728, 0), App.Vector(3.043994, -1.860855, 0), App.Vector(2.984757, -1.91625, 0), App.Vector(2.923144, -1.968177, 0), App.Vector(2.858048, -2.014819, 0), App.Vector(2.791046, -2.058608, 0), App.Vector(2.721016, -2.097858, 0), App.Vector(2.624177, -2.14545, 0), App.Vector(2.497497, -2.195112, 0), App.Vector(2.338026, -2.236753, 0), App.Vector(2.171555, -2.263261, 0), App.Vector(2.057983, -2.266132, 0), App.Vector(2.000216, -2.267592, 0)], [4, 1, 1, 1, 1, 1, 1, 1, 1, 1, 1, 1, 4], [0, 0.757959112, 1.505699292, 2.245454638, 2.979532153, 3.711538275, 4.438200793, 5.171680507, 5.909471876, 7.393775596, 8.890124382, 10.418191784, 12], False, 3, [1, 1, 1, 1, 1, 1, 1, 1, 1, 1, 1, 1, 1, 1, 1], False),  # 39
], False)
sketch2.addConstraint([
    Sketcher.Constraint("Block", 13),
    Sketcher.Constraint("Block", 14),
    Sketcher.Constraint("Block", 15),
    Sketcher.Constraint("Block", 16),
    Sketcher.Constraint("Block", 17),
    Sketcher.Constraint("Block", 18),
    Sketcher.Constraint("Block", 19),
    Sketcher.Constraint("Block", 21),
    Sketcher.Constraint("Block", 22),
    Sketcher.Constraint("Block", 23),
    Sketcher.Constraint("Block", 24),
    Sketcher.Constraint("Block", 25),
    Sketcher.Constraint("Block", 26),
    Sketcher.Constraint("Block", 27),
    Sketcher.Constraint("Block", 28),
    Sketcher.Constraint("Block", 30),
    Sketcher.Constraint("Block", 31),
    Sketcher.Constraint("Block", 32),
    Sketcher.Constraint("Block", 33),
    Sketcher.Constraint("Block", 34),
    Sketcher.Constraint("Block", 36),
    Sketcher.Constraint("Block", 37),
    Sketcher.Constraint("Block", 38),
    Sketcher.Constraint("Block", 39),
    Sketcher.Constraint("Coincident", 0, 2, 1, 1),
    Sketcher.Constraint("Coincident", 1, 2, 2, 1),
    Sketcher.Constraint("Coincident", 2, 2, 3, 1),
    Sketcher.Constraint("Coincident", 3, 2, 4, 1),
    Sketcher.Constraint("Coincident", 4, 2, 5, 1),
    Sketcher.Constraint("Coincident", 5, 2, 6, 1),
    Sketcher.Constraint("Coincident", 6, 2, 7, 1),
    Sketcher.Constraint("Coincident", 7, 2, 8, 1),
    Sketcher.Constraint("Coincident", 8, 2, 9, 1),
    Sketcher.Constraint("Coincident", 9, 2, 10, 1),
    Sketcher.Constraint("Coincident", 10, 2, 11, 1),
    Sketcher.Constraint("Coincident", 11, 2, 0, 1),
    Sketcher.Constraint("Coincident", 12, 2, 13, 2),
    Sketcher.Constraint("Coincident", 19, 1, 20, 1),
    Sketcher.Constraint("Coincident", 20, 2, 21, 2),
    Sketcher.Constraint("Coincident", 28, 1, 12, 1),
    Sketcher.Constraint("Coincident", 29, 2, 30, 2),
    Sketcher.Constraint("Coincident", 34, 1, 35, 1),
    Sketcher.Constraint("Coincident", 35, 2, 36, 2),
    Sketcher.Constraint("Coincident", 39, 1, 29, 1),
    Sketcher.Constraint("Horizontal", 0),
    Sketcher.Constraint("Vertical", 1),
    Sketcher.Constraint("Horizontal", 2),
    Sketcher.Constraint("Vertical", 3),
    Sketcher.Constraint("Horizontal", 4),
    Sketcher.Constraint("Vertical", 5),
    Sketcher.Constraint("Horizontal", 6),
    Sketcher.Constraint("Vertical", 7),
    Sketcher.Constraint("Horizontal", 8),
    Sketcher.Constraint("Vertical", 9),
    Sketcher.Constraint("Horizontal", 10),
    Sketcher.Constraint("Vertical", 11),
    Sketcher.Constraint("Vertical", 3, 2, 6, 2),
    Sketcher.Constraint("Vertical", 5, 2, 8, 2),
    Sketcher.Constraint("Vertical", 7, 2, 10, 2),
    Sketcher.Constraint("Equal", 3, 7),
    Sketcher.Constraint("Equal", 7, 11),
    Sketcher.Constraint("DistanceY", 1, 1, 1, 2, Q("0.125 in")),
    Sketcher.Constraint("DistanceX", 4, 2, 4, 1, 1.50609),
    Sketcher.Constraint("DistanceY", 3, 2, 3, 1, 0.325641),
    Sketcher.Constraint("DistanceX", 3, 2, 35, 2, 5.449399),
    Sketcher.Constraint("DistanceX", 0, 2, 0, 1, 1.791026),
    Sketcher.Constraint("DistanceY", 5, 2, 5, 1, 1.221154),
    Sketcher.Constraint("DistanceY", 7, 2, -1, 1, 1.209259),
])
pocket1 = body.newObject("PartDesign::Pocket", "Pocket")
pocket1.Profile = sketch2
pocket1.Length = Q("0.05 in")
pocket1.Reversed = True

doc.recompute()
